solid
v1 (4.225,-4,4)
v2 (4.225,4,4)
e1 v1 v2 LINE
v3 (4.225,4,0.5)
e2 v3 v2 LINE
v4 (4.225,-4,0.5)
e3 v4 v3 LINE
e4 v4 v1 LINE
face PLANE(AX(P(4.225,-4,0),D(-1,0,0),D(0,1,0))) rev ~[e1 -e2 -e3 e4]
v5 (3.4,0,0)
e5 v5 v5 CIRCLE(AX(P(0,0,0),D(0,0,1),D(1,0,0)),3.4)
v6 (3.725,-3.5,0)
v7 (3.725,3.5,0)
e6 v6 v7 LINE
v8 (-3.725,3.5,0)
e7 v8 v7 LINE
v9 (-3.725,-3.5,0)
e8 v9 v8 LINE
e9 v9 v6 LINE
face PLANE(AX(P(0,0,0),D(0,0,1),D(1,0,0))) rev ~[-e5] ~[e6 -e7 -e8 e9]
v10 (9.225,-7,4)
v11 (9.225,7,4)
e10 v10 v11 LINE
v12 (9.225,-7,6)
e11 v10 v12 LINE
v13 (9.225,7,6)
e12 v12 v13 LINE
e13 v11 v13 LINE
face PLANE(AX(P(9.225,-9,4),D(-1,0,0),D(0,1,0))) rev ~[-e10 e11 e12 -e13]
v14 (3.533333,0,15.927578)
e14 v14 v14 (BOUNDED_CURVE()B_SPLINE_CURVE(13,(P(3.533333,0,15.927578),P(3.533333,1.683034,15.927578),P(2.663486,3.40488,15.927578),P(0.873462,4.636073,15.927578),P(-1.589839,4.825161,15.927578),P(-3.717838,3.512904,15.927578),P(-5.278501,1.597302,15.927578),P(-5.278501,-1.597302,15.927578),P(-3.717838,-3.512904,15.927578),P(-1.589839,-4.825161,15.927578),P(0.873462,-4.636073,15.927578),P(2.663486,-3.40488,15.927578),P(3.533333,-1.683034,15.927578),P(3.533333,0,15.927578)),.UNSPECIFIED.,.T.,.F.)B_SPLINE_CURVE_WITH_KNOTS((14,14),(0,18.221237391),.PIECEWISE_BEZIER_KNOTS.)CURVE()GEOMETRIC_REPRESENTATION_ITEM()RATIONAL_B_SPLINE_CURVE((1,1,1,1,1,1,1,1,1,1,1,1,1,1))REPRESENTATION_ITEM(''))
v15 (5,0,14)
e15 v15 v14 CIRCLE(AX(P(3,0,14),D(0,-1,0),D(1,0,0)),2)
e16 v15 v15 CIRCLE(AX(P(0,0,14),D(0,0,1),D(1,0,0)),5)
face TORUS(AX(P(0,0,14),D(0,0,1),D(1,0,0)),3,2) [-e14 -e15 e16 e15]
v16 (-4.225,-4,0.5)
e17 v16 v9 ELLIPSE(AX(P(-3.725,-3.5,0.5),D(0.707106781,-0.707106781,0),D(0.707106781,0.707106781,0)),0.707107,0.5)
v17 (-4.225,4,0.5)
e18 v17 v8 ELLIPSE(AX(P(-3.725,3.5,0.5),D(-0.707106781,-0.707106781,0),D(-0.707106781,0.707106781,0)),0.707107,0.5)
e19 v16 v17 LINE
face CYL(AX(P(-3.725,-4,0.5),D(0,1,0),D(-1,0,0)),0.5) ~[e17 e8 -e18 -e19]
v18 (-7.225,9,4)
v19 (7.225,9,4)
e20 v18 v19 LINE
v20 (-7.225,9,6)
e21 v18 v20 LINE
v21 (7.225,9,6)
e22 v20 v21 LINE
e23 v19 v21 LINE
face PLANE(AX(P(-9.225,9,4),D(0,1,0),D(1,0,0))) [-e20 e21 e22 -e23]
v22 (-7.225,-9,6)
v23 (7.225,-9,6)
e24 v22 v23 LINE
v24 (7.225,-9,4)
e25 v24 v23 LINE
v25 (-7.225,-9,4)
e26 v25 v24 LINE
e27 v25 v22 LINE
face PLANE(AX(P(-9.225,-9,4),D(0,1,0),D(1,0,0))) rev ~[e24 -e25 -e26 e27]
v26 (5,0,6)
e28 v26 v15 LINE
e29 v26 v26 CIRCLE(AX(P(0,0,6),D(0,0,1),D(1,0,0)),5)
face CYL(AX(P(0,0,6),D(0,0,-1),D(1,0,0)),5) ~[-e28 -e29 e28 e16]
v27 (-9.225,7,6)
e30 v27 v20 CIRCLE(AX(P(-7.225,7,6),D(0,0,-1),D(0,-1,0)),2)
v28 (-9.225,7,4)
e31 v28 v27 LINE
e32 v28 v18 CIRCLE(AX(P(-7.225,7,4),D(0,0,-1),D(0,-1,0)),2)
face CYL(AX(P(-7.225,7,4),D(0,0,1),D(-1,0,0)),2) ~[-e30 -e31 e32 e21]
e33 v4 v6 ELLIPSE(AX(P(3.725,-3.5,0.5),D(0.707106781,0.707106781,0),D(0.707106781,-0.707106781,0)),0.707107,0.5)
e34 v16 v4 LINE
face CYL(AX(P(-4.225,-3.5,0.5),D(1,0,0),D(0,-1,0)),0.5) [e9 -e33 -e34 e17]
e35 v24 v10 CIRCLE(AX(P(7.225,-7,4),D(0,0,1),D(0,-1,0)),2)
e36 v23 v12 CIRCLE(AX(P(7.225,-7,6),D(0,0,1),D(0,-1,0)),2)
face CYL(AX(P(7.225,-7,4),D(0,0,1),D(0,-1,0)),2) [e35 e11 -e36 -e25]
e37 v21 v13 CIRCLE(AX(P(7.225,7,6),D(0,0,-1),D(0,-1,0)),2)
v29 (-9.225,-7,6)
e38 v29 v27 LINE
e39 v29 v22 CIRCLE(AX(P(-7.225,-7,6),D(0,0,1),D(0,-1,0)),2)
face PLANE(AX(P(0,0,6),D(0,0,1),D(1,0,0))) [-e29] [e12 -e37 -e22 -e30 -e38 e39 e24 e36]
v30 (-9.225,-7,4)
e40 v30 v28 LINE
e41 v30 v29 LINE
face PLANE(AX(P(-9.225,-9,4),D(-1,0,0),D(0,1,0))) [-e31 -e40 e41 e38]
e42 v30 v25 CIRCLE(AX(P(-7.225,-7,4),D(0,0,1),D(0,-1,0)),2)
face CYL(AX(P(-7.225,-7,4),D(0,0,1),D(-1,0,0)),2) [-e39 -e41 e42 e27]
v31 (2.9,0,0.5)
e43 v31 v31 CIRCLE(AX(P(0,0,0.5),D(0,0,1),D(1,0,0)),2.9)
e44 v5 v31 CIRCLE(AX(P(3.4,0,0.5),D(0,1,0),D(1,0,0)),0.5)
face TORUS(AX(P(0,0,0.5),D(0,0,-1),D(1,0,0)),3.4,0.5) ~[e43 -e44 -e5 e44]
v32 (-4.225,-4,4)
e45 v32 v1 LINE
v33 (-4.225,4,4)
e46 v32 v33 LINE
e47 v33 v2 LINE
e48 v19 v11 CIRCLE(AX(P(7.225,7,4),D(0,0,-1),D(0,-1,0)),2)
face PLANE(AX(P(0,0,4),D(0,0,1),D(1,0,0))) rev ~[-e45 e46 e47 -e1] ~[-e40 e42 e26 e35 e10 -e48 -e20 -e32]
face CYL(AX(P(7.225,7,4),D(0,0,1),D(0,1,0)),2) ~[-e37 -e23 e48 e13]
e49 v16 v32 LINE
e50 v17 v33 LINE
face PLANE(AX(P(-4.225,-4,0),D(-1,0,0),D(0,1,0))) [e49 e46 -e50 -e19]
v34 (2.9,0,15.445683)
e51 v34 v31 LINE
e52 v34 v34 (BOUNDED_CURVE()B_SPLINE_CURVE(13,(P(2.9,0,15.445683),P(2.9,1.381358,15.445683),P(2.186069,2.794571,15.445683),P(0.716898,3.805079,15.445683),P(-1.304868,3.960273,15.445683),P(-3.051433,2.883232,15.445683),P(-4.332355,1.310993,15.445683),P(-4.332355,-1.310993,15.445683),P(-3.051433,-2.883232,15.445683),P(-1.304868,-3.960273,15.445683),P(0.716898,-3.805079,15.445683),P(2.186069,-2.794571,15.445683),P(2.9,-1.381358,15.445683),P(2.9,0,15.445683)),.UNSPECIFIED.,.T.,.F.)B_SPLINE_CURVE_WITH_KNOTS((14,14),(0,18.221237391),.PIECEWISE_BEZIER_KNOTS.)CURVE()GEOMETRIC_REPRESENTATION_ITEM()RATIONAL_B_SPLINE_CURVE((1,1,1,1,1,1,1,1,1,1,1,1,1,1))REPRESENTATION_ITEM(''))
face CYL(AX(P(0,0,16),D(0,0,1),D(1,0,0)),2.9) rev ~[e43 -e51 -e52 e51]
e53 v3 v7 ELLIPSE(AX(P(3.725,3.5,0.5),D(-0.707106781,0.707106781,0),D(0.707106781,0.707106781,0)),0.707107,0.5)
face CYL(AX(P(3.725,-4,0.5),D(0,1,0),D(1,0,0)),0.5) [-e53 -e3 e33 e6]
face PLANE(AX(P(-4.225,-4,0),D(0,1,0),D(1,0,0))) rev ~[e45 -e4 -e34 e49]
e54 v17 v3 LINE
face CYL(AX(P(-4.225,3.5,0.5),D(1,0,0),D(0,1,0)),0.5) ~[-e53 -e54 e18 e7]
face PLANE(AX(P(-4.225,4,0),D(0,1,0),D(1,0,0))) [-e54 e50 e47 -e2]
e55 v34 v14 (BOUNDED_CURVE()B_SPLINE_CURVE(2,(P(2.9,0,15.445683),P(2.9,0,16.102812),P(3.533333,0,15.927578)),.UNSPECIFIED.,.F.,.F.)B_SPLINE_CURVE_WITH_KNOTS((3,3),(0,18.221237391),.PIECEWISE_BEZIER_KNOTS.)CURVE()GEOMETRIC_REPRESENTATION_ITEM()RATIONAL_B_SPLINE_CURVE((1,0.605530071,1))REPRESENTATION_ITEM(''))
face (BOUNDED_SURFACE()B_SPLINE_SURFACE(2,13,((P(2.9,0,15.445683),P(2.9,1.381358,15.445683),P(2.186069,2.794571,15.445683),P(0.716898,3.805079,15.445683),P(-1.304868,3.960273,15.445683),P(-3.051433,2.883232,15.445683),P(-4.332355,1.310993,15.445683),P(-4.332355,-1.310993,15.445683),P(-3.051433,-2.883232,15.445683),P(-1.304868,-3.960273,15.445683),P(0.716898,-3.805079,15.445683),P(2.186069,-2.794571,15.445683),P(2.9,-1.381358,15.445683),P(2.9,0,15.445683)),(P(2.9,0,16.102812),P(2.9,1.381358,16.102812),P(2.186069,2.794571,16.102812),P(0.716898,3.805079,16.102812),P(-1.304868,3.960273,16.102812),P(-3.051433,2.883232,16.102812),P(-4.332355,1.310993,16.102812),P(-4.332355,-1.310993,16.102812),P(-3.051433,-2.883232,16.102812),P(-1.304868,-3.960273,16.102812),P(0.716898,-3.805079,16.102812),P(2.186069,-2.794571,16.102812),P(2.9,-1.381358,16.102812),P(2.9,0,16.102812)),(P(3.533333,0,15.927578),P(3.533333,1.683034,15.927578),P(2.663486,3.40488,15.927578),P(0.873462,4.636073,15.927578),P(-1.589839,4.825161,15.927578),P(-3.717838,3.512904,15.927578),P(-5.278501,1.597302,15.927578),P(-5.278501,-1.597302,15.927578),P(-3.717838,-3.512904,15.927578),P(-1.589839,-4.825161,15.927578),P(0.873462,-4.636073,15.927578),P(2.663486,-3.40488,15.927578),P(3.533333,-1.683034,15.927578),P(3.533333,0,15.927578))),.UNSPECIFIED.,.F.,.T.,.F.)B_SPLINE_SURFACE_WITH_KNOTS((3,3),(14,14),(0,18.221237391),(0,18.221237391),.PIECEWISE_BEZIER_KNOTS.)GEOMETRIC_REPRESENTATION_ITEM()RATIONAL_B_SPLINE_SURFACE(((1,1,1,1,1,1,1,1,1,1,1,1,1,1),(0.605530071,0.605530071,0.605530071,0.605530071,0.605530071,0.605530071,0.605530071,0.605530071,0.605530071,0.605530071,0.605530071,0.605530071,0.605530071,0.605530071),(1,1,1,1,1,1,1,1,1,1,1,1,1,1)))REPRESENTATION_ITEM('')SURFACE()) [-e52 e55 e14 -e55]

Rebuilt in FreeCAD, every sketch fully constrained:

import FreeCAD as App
import Part
import Sketcher
Q = App.Units.Quantity


def edges_at(feature, points):
    """Names of the edges that pass closest to the given points."""
    edges = feature.Shape.Edges
    near = lambda p: min(range(len(edges)), key=lambda i: edges[i].distToShape(Part.Vertex(*p))[0])
    return sorted({f"Edge{near(p) + 1}" for p in points})

doc = App.newDocument("Part")
body = doc.addObject("PartDesign::Body", "Body")

# Sketch on XY plane
sketch1 = body.newObject("Sketcher::SketchObject", "Sketch")
sketch1.AttachmentSupport = (doc.getObject("XY_Plane"), [""])
sketch1.MapMode = "FlatFace"
sketch1.addGeometry([
    Part.LineSegment(App.Vector(-4.225, 4, 0), App.Vector(-4.225, -4, 0)),
    Part.LineSegment(App.Vector(-4.225, -4, 0), App.Vector(4.225, -4, 0)),
    Part.LineSegment(App.Vector(4.225, -4, 0), App.Vector(4.225, 4, 0)),
    Part.LineSegment(App.Vector(4.225, 4, 0), App.Vector(-4.225, 4, 0)),
], False)
sketch1.addConstraint([
    Sketcher.Constraint("Coincident", 0, 2, 1, 1),
    Sketcher.Constraint("Coincident", 1, 2, 2, 1),
    Sketcher.Constraint("Coincident", 2, 2, 3, 1),
    Sketcher.Constraint("Coincident", 3, 2, 0, 1),
    Sketcher.Constraint("Vertical", 0),
    Sketcher.Constraint("Horizontal", 1),
    Sketcher.Constraint("Vertical", 2),
    Sketcher.Constraint("Horizontal", 3),
    Sketcher.Constraint("Symmetric", 0, 2, 2, 2, -1, 1),
    Sketcher.Constraint("DistanceY", 0, 2, 0, 1, Q("8 mm")),
    Sketcher.Constraint("DistanceX", 1, 1, 1, 2, Q("8.45 mm")),
])
pad1 = body.newObject("PartDesign::Pad", "Pad")
pad1.Profile = sketch1
pad1.Length = 4

# Sketch on XY plane
sketch2 = body.newObject("Sketcher::SketchObject", "Sketch001")
sketch2.AttachmentSupport = (doc.getObject("XY_Plane"), [""])
sketch2.MapMode = "FlatFace"
sketch2.AttachmentOffset = App.Placement(App.Vector(0, 0, 4), App.Rotation())
sketch2.addGeometry([
    Part.LineSegment(App.Vector(-9.225, 9, 0), App.Vector(-9.225, -9, 0)),
    Part.LineSegment(App.Vector(-9.225, -9, 0), App.Vector(9.225, -9, 0)),
    Part.LineSegment(App.Vector(9.225, -9, 0), App.Vector(9.225, 9, 0)),
    Part.LineSegment(App.Vector(9.225, 9, 0), App.Vector(-9.225, 9, 0)),
], False)
sketch2.addConstraint([
    Sketcher.Constraint("Coincident", 0, 2, 1, 1),
    Sketcher.Constraint("Coincident", 1, 2, 2, 1),
    Sketcher.Constraint("Coincident", 2, 2, 3, 1),
    Sketcher.Constraint("Coincident", 3, 2, 0, 1),
    Sketcher.Constraint("Vertical", 0),
    Sketcher.Constraint("Horizontal", 1),
    Sketcher.Constraint("Vertical", 2),
    Sketcher.Constraint("Horizontal", 3),
    Sketcher.Constraint("Symmetric", 0, 2, 2, 2, -1, 1),
    Sketcher.Constraint("DistanceY", 0, 2, 0, 1, Q("18 mm")),
    Sketcher.Constraint("DistanceX", 1, 1, 1, 2, Q("18.45 mm")),
])
pad2 = body.newObject("PartDesign::Pad", "Pad001")
pad2.Profile = sketch2
pad2.Length = 2

# Sketch on XY plane
sketch3 = body.newObject("Sketcher::SketchObject", "Sketch002")
sketch3.AttachmentSupport = (doc.getObject("XY_Plane"), [""])
sketch3.MapMode = "FlatFace"
sketch3.AttachmentOffset = App.Placement(App.Vector(0, 0, 6), App.Rotation())
sketch3.addGeometry(Part.Circle(App.Vector(0, 0, 0), App.Vector(0, 0, 1), 5), False)
sketch3.addConstraint([
    Sketcher.Constraint("Coincident", 0, 3, -1, 1),
    Sketcher.Constraint("Diameter", 0, Q("10 mm")),
])
pad3 = body.newObject("PartDesign::Pad", "Pad002")
pad3.Profile = sketch3
pad3.Length = 10

# Sketch on XY plane
sketch4 = body.newObject("Sketcher::SketchObject", "Sketch003")
sketch4.AttachmentSupport = (doc.getObject("XY_Plane"), [""])
sketch4.MapMode = "FlatFace"
sketch4.AttachmentOffset = App.Placement(App.Vector(0, 0, 16), App.Rotation())
sketch4.addGeometry(Part.Circle(App.Vector(0, 0, 0), App.Vector(0, 0, 1), 2.9), False)
sketch4.addConstraint([
    Sketcher.Constraint("Coincident", 0, 3, -1, 1),
    Sketcher.Constraint("Diameter", 0, Q("5.8 mm")),
])
pocket1 = body.newObject("PartDesign::Pocket", "Pocket")
pocket1.Profile = sketch4
pocket1.Type = "ThroughAll"
doc.recompute()

fillet = body.newObject("PartDesign::Fillet", "Fillet")
fillet.Base = (pocket1, edges_at(pocket1, [
    (-9.225, 9, 5),
    (9.225, 9, 5),
    (9.225, -9, 5),
    (-9.225, -9, 5),
    (-5, 0, 16),
]))
fillet.Radius = 2
doc.recompute()

fillet2 = body.newObject("PartDesign::Fillet", "Fillet001")
fillet2.Base = (fillet, edges_at(fillet, [
    (-2.9, 0, 16),
    (-2.9, 0, 0),
    (-4.225, 0, 0),
    (0, 4, 0),
    (0, -4, 0),
    (4.225, 0, 0),
]))
fillet2.Radius = 0.5

doc.recompute()
